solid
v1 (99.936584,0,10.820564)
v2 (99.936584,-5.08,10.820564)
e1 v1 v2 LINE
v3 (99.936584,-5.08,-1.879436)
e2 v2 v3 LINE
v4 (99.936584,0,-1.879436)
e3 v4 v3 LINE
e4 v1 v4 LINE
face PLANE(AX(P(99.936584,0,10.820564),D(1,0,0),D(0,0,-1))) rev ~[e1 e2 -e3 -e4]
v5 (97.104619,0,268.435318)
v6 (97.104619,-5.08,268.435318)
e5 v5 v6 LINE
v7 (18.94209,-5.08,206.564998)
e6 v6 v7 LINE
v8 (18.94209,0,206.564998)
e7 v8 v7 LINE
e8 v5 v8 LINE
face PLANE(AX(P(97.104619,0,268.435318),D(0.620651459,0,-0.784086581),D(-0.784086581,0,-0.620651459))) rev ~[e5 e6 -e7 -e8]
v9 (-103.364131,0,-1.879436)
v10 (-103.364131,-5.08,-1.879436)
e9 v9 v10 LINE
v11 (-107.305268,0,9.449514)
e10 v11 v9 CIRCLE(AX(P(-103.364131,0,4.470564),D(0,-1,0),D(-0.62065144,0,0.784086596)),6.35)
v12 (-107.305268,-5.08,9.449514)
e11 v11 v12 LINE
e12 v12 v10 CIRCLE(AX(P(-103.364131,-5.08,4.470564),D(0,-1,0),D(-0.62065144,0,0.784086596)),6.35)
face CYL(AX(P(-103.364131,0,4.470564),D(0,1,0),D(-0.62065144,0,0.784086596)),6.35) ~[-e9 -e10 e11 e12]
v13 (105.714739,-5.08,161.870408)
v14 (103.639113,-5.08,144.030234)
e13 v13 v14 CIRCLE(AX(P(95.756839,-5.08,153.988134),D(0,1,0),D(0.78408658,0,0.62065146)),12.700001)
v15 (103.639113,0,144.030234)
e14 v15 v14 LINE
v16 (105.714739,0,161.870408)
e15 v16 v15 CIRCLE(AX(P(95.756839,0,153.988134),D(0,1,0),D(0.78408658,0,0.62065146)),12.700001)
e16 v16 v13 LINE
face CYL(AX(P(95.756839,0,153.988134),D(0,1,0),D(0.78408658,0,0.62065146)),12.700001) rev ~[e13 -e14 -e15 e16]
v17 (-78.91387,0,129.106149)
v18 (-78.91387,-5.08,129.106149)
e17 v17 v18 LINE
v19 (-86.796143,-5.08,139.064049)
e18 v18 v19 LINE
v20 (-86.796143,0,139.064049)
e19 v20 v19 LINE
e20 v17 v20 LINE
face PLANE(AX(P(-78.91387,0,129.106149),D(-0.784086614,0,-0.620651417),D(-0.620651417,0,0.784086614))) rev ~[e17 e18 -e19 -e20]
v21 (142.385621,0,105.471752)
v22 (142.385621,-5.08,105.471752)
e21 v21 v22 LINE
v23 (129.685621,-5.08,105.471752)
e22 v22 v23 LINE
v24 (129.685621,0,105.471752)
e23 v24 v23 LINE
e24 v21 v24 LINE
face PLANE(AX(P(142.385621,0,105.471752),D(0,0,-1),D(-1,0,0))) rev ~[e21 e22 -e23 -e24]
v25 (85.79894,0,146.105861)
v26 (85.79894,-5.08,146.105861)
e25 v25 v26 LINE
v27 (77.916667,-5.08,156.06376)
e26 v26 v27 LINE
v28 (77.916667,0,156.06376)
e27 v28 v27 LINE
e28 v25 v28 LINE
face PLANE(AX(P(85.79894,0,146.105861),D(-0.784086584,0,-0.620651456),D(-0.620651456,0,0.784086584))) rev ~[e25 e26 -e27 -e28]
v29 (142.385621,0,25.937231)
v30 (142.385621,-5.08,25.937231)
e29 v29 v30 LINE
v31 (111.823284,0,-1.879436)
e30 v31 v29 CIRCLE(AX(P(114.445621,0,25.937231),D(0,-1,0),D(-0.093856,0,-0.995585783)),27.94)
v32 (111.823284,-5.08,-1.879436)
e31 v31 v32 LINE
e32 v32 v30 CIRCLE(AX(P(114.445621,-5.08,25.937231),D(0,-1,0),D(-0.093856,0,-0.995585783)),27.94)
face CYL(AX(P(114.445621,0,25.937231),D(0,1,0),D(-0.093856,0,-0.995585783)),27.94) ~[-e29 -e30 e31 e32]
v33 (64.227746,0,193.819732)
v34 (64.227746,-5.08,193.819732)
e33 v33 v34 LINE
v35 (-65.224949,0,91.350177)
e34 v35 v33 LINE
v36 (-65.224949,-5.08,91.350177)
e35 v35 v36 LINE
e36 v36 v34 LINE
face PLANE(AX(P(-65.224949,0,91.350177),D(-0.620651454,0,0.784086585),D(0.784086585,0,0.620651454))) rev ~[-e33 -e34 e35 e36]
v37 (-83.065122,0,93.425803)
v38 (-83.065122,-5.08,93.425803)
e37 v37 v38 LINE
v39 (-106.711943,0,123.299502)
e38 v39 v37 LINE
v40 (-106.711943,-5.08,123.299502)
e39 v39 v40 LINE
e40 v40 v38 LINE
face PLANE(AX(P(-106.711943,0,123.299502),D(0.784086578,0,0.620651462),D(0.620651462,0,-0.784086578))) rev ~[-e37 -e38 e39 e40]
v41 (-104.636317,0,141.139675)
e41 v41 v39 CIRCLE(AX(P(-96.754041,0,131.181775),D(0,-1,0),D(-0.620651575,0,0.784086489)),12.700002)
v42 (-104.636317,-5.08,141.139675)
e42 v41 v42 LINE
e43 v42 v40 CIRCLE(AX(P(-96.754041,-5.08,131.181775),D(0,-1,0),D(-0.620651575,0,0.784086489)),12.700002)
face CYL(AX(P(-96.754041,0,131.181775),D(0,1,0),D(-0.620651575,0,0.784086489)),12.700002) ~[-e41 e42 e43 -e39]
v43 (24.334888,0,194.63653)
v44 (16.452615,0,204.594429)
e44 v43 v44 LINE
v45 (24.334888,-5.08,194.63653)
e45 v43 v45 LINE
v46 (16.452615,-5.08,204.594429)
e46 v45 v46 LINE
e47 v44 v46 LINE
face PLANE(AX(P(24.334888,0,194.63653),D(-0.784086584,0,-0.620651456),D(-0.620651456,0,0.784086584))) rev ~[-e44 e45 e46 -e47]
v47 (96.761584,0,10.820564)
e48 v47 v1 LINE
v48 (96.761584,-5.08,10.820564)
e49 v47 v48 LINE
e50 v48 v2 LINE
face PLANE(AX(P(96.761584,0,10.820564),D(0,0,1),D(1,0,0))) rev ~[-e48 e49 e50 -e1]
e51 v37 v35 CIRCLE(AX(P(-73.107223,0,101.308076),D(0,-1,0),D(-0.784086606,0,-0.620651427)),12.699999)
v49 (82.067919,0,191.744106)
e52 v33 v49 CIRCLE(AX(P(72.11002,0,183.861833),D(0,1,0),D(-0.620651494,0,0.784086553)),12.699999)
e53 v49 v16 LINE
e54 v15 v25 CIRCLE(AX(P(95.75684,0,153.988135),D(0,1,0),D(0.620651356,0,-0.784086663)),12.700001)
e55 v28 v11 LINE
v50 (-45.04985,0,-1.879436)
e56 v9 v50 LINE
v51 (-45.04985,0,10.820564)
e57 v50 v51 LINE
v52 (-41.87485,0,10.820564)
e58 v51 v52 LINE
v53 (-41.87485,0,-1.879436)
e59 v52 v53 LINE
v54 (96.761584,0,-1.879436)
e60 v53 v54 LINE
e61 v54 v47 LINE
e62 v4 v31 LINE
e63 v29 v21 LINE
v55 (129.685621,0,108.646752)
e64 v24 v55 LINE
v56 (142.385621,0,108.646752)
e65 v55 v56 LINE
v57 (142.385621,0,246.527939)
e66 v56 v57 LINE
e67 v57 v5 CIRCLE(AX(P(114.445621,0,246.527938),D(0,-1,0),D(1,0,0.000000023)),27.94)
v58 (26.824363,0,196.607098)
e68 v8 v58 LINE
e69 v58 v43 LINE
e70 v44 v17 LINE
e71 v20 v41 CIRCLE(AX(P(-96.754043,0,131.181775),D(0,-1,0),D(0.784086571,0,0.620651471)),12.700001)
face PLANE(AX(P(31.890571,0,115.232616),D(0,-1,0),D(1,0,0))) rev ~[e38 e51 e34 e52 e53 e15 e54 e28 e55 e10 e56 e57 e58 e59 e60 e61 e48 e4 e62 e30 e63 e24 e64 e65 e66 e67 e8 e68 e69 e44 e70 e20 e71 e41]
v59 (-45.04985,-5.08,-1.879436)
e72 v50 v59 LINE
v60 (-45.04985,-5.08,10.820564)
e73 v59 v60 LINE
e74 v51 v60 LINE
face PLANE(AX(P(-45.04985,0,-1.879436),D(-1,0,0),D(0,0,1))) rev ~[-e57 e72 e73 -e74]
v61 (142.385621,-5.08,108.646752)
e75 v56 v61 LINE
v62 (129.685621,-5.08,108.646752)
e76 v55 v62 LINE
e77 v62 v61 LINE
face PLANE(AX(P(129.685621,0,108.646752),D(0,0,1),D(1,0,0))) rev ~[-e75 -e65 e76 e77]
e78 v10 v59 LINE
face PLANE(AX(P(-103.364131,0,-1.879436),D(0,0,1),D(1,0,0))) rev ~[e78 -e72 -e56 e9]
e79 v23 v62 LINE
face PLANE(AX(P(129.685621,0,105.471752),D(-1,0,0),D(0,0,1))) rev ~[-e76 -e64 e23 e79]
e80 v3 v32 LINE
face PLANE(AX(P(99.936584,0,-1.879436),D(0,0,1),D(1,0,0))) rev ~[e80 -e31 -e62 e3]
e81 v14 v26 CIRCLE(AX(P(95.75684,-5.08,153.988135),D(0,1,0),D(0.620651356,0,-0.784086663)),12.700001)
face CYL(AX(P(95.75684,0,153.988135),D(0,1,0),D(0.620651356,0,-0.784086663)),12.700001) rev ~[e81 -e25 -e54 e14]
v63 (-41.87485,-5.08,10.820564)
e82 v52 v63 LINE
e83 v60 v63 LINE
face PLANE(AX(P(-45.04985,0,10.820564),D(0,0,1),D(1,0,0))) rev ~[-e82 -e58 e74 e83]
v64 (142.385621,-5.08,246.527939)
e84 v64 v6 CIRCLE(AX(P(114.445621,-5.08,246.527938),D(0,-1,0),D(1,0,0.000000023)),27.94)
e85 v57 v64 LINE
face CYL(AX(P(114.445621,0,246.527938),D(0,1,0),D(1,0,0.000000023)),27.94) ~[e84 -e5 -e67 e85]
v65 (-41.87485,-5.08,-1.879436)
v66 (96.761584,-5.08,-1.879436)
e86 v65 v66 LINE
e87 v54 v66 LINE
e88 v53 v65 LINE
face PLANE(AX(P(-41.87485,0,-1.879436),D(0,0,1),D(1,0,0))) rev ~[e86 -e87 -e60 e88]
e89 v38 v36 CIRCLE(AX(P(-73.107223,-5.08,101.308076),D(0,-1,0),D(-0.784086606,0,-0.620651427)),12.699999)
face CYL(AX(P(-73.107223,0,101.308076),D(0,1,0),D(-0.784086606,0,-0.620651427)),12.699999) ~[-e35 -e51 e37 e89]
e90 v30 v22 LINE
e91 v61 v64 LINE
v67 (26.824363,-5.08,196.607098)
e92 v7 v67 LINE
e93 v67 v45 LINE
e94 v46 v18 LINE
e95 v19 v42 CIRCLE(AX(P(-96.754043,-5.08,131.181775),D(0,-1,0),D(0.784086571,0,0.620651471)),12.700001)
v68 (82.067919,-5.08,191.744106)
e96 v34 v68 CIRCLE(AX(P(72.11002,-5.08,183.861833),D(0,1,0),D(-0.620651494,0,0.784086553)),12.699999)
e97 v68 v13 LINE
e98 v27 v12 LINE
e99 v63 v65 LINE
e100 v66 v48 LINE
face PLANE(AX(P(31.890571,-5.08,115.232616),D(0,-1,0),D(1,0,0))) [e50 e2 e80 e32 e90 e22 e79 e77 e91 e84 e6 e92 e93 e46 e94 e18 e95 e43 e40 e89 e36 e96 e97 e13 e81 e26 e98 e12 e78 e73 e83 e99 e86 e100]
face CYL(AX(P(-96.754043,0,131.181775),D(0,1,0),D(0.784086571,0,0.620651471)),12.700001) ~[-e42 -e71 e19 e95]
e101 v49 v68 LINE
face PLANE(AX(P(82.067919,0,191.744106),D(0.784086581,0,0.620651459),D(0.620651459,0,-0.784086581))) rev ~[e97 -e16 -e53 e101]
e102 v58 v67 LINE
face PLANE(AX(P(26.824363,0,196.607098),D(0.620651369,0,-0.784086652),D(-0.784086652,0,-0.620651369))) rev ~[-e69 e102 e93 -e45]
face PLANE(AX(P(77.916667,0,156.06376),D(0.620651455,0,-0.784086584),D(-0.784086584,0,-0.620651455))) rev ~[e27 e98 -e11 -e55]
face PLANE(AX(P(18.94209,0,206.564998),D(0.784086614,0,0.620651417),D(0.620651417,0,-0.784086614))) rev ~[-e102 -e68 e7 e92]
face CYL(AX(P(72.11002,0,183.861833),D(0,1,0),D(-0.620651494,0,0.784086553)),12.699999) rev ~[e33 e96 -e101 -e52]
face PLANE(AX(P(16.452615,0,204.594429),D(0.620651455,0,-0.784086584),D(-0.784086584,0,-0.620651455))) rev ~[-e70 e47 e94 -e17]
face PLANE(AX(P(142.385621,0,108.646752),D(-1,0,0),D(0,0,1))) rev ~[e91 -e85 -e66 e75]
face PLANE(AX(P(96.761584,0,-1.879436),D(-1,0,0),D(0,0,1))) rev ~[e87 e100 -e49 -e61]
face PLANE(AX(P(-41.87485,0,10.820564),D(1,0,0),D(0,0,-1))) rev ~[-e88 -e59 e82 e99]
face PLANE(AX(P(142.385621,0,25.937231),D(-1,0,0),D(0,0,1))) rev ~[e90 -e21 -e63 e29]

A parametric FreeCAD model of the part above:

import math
import FreeCAD as App
import Part
import Sketcher

V = App.Vector
Q = App.Units.Quantity

doc = App.newDocument("Part")
body = doc.addObject("PartDesign::Body", "Body")

# Sketch on XZ plane
sketch1 = body.newObject("Sketcher::SketchObject", "Sketch")
sketch1.AttachmentSupport = (doc.getObject("XZ_Plane"), [""])
sketch1.MapMode = "FlatFace"
sketch1.addGeometry([
    Part.LineSegment(V(-78.9, 129.1, 0), V(-86.8, 139.1, 0)),  # 0
    Part.ArcOfCircle(Part.Circle(V(-96.8, 131.2, 0), V(0, 0, 1), 12.7), math.radians(38), math.radians(128)),  # 1
    Part.ArcOfCircle(Part.Circle(V(-96.8, 131.2, 0), V(0, 0, 1), 12.7), math.radians(128), math.radians(218)),  # 2
    Part.LineSegment(V(-106.7, 123.3, 0), V(-83.1, 93.4, 0)),  # 3
    Part.ArcOfCircle(Part.Circle(V(-73.1, 101.3, 0), V(0, 0, 1), 12.7), math.radians(-142), math.radians(-52)),  # 4
    Part.LineSegment(V(-65.2, 91.4, 0), V(64.2, 193.8, 0)),  # 5
    Part.ArcOfCircle(Part.Circle(V(72.1, 183.9, 0), V(0, 0, 1), 12.7), math.radians(38), math.radians(128)),  # 6
    Part.LineSegment(V(82.1, 191.7, 0), V(105.7, 161.9, 0)),  # 7
    Part.ArcOfCircle(Part.Circle(V(95.8, 154, 0), V(0, 0, 1), 12.7), math.radians(-52), math.radians(38)),  # 8
    Part.ArcOfCircle(Part.Circle(V(95.8, 154, 0), V(0, 0, 1), 12.7), math.radians(-142), math.radians(-52)),  # 9
    Part.LineSegment(V(85.8, 146.1, 0), V(77.9, 156.1, 0)),  # 10
    Part.LineSegment(V(77.9, 156.1, 0), V(-107.3, 9.4, 0)),  # 11
    Part.ArcOfCircle(Part.Circle(V(-103.4, 4.5, 0), V(0, 0, 1), 6.4), math.radians(128), math.radians(270)),  # 12
    Part.LineSegment(V(-103.4, -1.9, 0), V(-45, -1.9, 0)),  # 13
    Part.LineSegment(V(-45, -1.9, 0), V(-45, 10.8, 0)),  # 14
    Part.LineSegment(V(-45, 10.8, 0), V(-41.9, 10.8, 0)),  # 15
    Part.LineSegment(V(-41.9, 10.8, 0), V(-41.9, -1.9, 0)),  # 16
    Part.LineSegment(V(-41.9, -1.9, 0), V(96.8, -1.9, 0)),  # 17
    Part.LineSegment(V(96.8, -1.9, 0), V(96.8, 10.8, 0)),  # 18
    Part.LineSegment(V(96.8, 10.8, 0), V(99.9, 10.8, 0)),  # 19
    Part.LineSegment(V(99.9, 10.8, 0), V(99.9, -1.9, 0)),  # 20
    Part.LineSegment(V(99.9, -1.9, 0), V(111.8, -1.9, 0)),  # 21
    Part.ArcOfCircle(Part.Circle(V(114.4, 25.9, 0), V(0, 0, 1), 27.9), math.radians(-95), math.radians(0)),  # 22
    Part.LineSegment(V(142.4, 25.9, 0), V(142.4, 105.5, 0)),  # 23
    Part.LineSegment(V(142.4, 105.5, 0), V(129.7, 105.5, 0)),  # 24
    Part.LineSegment(V(129.7, 105.5, 0), V(129.7, 108.6, 0)),  # 25
    Part.LineSegment(V(129.7, 108.6, 0), V(142.4, 108.6, 0)),  # 26
    Part.LineSegment(V(142.4, 108.6, 0), V(142.4, 246.5, 0)),  # 27
    Part.ArcOfCircle(Part.Circle(V(114.4, 246.5, 0), V(0, 0, 1), 27.9), math.radians(0), math.radians(128)),  # 28
    Part.LineSegment(V(97.1, 268.4, 0), V(18.9, 206.6, 0)),  # 29
    Part.LineSegment(V(18.9, 206.6, 0), V(26.8, 196.6, 0)),  # 30
    Part.LineSegment(V(26.8, 196.6, 0), V(24.3, 194.6, 0)),  # 31
    Part.LineSegment(V(24.3, 194.6, 0), V(16.5, 204.6, 0)),  # 32
    Part.LineSegment(V(16.5, 204.6, 0), V(-78.9, 129.1, 0)),  # 33
], False)
sketch1.addConstraint([
    Sketcher.Constraint("Tangent", 0, 2, 1, 1),
    Sketcher.Constraint("Tangent", 1, 2, 2, 1),
    Sketcher.Constraint("Tangent", 2, 2, 3, 1),
    Sketcher.Constraint("Tangent", 3, 2, 4, 1),
    Sketcher.Constraint("Tangent", 4, 2, 5, 1),
    Sketcher.Constraint("Tangent", 5, 2, 6, 2),
    Sketcher.Constraint("Tangent", 6, 1, 7, 1),
    Sketcher.Constraint("Tangent", 7, 2, 8, 2),
    Sketcher.Constraint("Tangent", 8, 1, 9, 2),
    Sketcher.Constraint("Tangent", 9, 1, 10, 1),
    Sketcher.Constraint("Coincident", 10, 2, 11, 1),
    Sketcher.Constraint("Tangent", 11, 2, 12, 1),
    Sketcher.Constraint("Tangent", 12, 2, 13, 1),
    Sketcher.Constraint("Coincident", 13, 2, 14, 1),
    Sketcher.Constraint("Coincident", 14, 2, 15, 1),
    Sketcher.Constraint("Coincident", 15, 2, 16, 1),
    Sketcher.Constraint("Coincident", 16, 2, 17, 1),
    Sketcher.Constraint("Coincident", 17, 2, 18, 1),
    Sketcher.Constraint("Coincident", 18, 2, 19, 1),
    Sketcher.Constraint("Coincident", 19, 2, 20, 1),
    Sketcher.Constraint("Coincident", 20, 2, 21, 1),
    Sketcher.Constraint("Coincident", 21, 2, 22, 1),
    Sketcher.Constraint("Tangent", 22, 2, 23, 1),
    Sketcher.Constraint("Coincident", 23, 2, 24, 1),
    Sketcher.Constraint("Coincident", 24, 2, 25, 1),
    Sketcher.Constraint("Coincident", 25, 2, 26, 1),
    Sketcher.Constraint("Coincident", 26, 2, 27, 1),
    Sketcher.Constraint("Tangent", 27, 2, 28, 1),
    Sketcher.Constraint("Tangent", 28, 2, 29, 1),
    Sketcher.Constraint("Coincident", 29, 2, 30, 1),
    Sketcher.Constraint("Coincident", 30, 2, 31, 1),
    Sketcher.Constraint("Coincident", 31, 2, 32, 1),
    Sketcher.Constraint("Coincident", 32, 2, 33, 1),
    Sketcher.Constraint("Coincident", 33, 2, 0, 1),
    Sketcher.Constraint("Horizontal", 13),
    Sketcher.Constraint("Vertical", 14),
    Sketcher.Constraint("Horizontal", 15),
    Sketcher.Constraint("Vertical", 16),
    Sketcher.Constraint("Horizontal", 17),
    Sketcher.Constraint("Vertical", 18),
    Sketcher.Constraint("Horizontal", 19),
    Sketcher.Constraint("Vertical", 20),
    Sketcher.Constraint("Horizontal", 21),
    Sketcher.Constraint("Vertical", 23),
    Sketcher.Constraint("Horizontal", 24),
    Sketcher.Constraint("Vertical", 25),
    Sketcher.Constraint("Horizontal", 26),
    Sketcher.Constraint("Vertical", 27),
    Sketcher.Constraint("Equal", 1, 2),
    Sketcher.Constraint("Equal", 1, 4),
    Sketcher.Constraint("Equal", 4, 6),
    Sketcher.Constraint("Equal", 6, 8),
    Sketcher.Constraint("Equal", 8, 9),
    Sketcher.Constraint("Equal", 22, 28),
    Sketcher.Constraint("Parallel", 0, 3),
    Sketcher.Constraint("Perpendicular", 3, 5),
    Sketcher.Constraint("Perpendicular", 5, 7),
    Sketcher.Constraint("Parallel", 7, 10),
    Sketcher.Constraint("Perpendicular", 10, 11),
    Sketcher.Constraint("Parallel", 11, 29),
    Sketcher.Constraint("Perpendicular", 29, 30),
    Sketcher.Constraint("Perpendicular", 30, 31),
    Sketcher.Constraint("Perpendicular", 31, 32),
    Sketcher.Constraint("Perpendicular", 32, 33),
    Sketcher.Constraint("Horizontal", 13, 2, 16, 2),
    Sketcher.Constraint("Horizontal", 15, 2, 18, 2),
    Sketcher.Constraint("Horizontal", 17, 2, 20, 2),
    Sketcher.Constraint("Vertical", 22, 3, 28, 3),
    Sketcher.Constraint("Equal", 15, 19),
    Sketcher.Constraint("Equal", 26, 14),
    Sketcher.Constraint("Equal", 19, 25),
    Sketcher.Constraint("Equal", 3, 7),
    Sketcher.Constraint("Equal", 0, 10),
    Sketcher.Constraint("Equal", 10, 30),
    Sketcher.Constraint("Equal", 30, 32),
    Sketcher.Constraint("Radius", 1, Q("0.5 in")),
    Sketcher.Constraint("Radius", 22, Q("1.1 in")),
    Sketcher.Constraint("Radius", 12, Q("0.25 in")),
    Sketcher.Constraint("DistanceX", 24, 2, 24, 1, Q("0.5 in")),
    Sketcher.Constraint("Distance", 0, Q("0.5 in")),
    Sketcher.Constraint("Distance", 3, Q("1.5 in")),
    Sketcher.Constraint("Distance", 5, Q("6.5 in")),
    Sketcher.Constraint("DistanceX", 15, 1, 15, 2, Q("0.125 in")),
    Sketcher.Constraint("Distance", 31, Q("0.125 in")),
    Sketcher.Constraint("DistanceX", 21, 1, 21, 2, Q("11.8867 mm")),
    Sketcher.Constraint("DistanceX", 9, 1, 18, 2, Q("0.4316002 in")),
    Sketcher.Constraint("DistanceX", 29, 2, 5, 2, Q("1.7828998 in")),
    Sketcher.Constraint("DistanceX", 13, 1, 13, 2, Q("58.314281 mm")),
    Sketcher.Constraint("DistanceY", 23, 1, 23, 2, Q("79.534521 mm")),
    Sketcher.Constraint("DistanceY", -1, 1, 2, 2, Q("123.299502 mm")),
    Sketcher.Constraint("DistanceY", -1, 1, 29, 2, Q("206.564998 mm")),
    Sketcher.Constraint("DistanceX", 6, 3, 22, 3, Q("42.335601 mm")),
    Sketcher.Constraint("DistanceY", 1, 3, 1, 2, Q("9.9579 mm")),
    Sketcher.Constraint("DistanceY", 8, 1, 8, 3, Q("9.9579 mm")),
    Sketcher.Constraint("DistanceX", 4, 2, 13, 2, Q("20.175099 mm")),
    Sketcher.Constraint("DistanceX", 2, 3, -1, 1, Q("96.754041 mm")),
])
pad1 = body.newObject("PartDesign::Pad", "Pad")
pad1.Profile = sketch1
pad1.Length = Q("0.2 in")

doc.recompute()
